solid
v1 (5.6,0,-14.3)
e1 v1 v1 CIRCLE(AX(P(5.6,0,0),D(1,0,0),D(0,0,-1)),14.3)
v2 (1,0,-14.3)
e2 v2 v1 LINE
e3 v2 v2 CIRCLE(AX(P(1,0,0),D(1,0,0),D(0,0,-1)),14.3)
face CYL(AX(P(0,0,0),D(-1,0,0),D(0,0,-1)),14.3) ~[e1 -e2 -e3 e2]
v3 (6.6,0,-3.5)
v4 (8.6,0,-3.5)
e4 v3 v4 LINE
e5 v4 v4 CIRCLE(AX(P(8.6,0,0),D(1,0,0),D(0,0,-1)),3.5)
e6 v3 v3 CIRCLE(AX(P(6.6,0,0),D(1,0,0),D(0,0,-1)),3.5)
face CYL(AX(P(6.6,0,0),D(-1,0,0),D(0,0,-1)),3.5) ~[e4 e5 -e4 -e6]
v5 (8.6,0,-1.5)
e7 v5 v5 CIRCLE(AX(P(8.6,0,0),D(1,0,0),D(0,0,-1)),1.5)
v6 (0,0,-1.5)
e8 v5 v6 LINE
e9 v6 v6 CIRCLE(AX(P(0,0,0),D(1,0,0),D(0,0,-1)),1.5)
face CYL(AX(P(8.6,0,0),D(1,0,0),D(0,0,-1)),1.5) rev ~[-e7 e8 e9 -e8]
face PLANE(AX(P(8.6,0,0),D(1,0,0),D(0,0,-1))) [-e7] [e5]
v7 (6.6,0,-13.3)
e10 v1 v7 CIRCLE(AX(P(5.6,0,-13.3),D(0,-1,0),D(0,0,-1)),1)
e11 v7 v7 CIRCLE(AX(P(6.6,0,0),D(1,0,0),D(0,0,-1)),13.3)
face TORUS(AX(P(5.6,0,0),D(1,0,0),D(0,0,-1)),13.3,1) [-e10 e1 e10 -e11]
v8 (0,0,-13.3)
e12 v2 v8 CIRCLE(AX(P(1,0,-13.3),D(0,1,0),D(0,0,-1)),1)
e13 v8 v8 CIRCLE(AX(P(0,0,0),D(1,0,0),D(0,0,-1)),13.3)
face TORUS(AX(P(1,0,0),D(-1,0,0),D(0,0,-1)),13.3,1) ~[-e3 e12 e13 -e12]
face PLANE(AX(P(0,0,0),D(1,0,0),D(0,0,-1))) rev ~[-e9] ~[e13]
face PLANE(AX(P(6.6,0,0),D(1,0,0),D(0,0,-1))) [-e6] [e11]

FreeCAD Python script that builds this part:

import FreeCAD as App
import Part
import Sketcher


def edges_at(feature, points):
    """Names of the edges that pass closest to the given points."""
    edges = feature.Shape.Edges
    near = lambda p: min(range(len(edges)), key=lambda i: edges[i].distToShape(Part.Vertex(*p))[0])
    return sorted({f"Edge{near(p) + 1}" for p in points})

doc = App.newDocument("Part")
body = doc.addObject("PartDesign::Body", "Body")

# Sketch on YZ plane
sketch1 = body.newObject("Sketcher::SketchObject", "Sketch")
sketch1.AttachmentSupport = (doc.getObject("YZ_Plane"), [""])
sketch1.MapMode = "FlatFace"
sketch1.addGeometry(Part.Circle(App.Vector(0, 0, 0), App.Vector(0, 0, 1), 14), False)
sketch1.addConstraint([
    Sketcher.Constraint("Coincident", 0, 3, -1, 1),
    Sketcher.Constraint("Diameter", 0, 28.6),
])
pad1 = body.newObject("PartDesign::Pad", "Pad")
pad1.Profile = sketch1
pad1.Length = 6.6

# Sketch on YZ plane
sketch2 = body.newObject("Sketcher::SketchObject", "Sketch001")
sketch2.AttachmentSupport = (doc.getObject("YZ_Plane"), [""])
sketch2.MapMode = "FlatFace"
sketch2.AttachmentOffset = App.Placement(App.Vector(0, 0, 6.6), App.Rotation())
sketch2.addGeometry(Part.Circle(App.Vector(0, 0, 0), App.Vector(0, 0, 1), 3.5), False)
sketch2.addConstraint([
    Sketcher.Constraint("Coincident", 0, 3, -1, 1),
    Sketcher.Constraint("Diameter", 0, 7.0),
])
pad2 = body.newObject("PartDesign::Pad", "Pad001")
pad2.Profile = sketch2
pad2.Length = 2

# Sketch on YZ plane
sketch3 = body.newObject("Sketcher::SketchObject", "Sketch002")
sketch3.AttachmentSupport = (doc.getObject("YZ_Plane"), [""])
sketch3.MapMode = "FlatFace"
sketch3.AttachmentOffset = App.Placement(App.Vector(0, 0, 8.6), App.Rotation())
sketch3.addGeometry(Part.Circle(App.Vector(0, 0, 0), App.Vector(0, 0, 1), 1.5), False)
sketch3.addConstraint([
    Sketcher.Constraint("Coincident", 0, 3, -1, 1),
    Sketcher.Constraint("Diameter", 0, 3.0),
])
pocket1 = body.newObject("PartDesign::Pocket", "Pocket")
pocket1.Profile = sketch3
pocket1.Length = 17.6
pocket1.Midplane = True
doc.recompute()

fillet = body.newObject("PartDesign::Fillet", "Fillet")
fillet.Base = (pocket1, edges_at(pocket1, [(0, -5.171, 13.332)]))
fillet.Radius = 1
doc.recompute()

fillet2 = body.newObject("PartDesign::Fillet", "Fillet001")
fillet2.Base = (fillet, edges_at(fillet, [(6.6, -5.171, 13.332)]))
fillet2.Radius = 1

doc.recompute()
